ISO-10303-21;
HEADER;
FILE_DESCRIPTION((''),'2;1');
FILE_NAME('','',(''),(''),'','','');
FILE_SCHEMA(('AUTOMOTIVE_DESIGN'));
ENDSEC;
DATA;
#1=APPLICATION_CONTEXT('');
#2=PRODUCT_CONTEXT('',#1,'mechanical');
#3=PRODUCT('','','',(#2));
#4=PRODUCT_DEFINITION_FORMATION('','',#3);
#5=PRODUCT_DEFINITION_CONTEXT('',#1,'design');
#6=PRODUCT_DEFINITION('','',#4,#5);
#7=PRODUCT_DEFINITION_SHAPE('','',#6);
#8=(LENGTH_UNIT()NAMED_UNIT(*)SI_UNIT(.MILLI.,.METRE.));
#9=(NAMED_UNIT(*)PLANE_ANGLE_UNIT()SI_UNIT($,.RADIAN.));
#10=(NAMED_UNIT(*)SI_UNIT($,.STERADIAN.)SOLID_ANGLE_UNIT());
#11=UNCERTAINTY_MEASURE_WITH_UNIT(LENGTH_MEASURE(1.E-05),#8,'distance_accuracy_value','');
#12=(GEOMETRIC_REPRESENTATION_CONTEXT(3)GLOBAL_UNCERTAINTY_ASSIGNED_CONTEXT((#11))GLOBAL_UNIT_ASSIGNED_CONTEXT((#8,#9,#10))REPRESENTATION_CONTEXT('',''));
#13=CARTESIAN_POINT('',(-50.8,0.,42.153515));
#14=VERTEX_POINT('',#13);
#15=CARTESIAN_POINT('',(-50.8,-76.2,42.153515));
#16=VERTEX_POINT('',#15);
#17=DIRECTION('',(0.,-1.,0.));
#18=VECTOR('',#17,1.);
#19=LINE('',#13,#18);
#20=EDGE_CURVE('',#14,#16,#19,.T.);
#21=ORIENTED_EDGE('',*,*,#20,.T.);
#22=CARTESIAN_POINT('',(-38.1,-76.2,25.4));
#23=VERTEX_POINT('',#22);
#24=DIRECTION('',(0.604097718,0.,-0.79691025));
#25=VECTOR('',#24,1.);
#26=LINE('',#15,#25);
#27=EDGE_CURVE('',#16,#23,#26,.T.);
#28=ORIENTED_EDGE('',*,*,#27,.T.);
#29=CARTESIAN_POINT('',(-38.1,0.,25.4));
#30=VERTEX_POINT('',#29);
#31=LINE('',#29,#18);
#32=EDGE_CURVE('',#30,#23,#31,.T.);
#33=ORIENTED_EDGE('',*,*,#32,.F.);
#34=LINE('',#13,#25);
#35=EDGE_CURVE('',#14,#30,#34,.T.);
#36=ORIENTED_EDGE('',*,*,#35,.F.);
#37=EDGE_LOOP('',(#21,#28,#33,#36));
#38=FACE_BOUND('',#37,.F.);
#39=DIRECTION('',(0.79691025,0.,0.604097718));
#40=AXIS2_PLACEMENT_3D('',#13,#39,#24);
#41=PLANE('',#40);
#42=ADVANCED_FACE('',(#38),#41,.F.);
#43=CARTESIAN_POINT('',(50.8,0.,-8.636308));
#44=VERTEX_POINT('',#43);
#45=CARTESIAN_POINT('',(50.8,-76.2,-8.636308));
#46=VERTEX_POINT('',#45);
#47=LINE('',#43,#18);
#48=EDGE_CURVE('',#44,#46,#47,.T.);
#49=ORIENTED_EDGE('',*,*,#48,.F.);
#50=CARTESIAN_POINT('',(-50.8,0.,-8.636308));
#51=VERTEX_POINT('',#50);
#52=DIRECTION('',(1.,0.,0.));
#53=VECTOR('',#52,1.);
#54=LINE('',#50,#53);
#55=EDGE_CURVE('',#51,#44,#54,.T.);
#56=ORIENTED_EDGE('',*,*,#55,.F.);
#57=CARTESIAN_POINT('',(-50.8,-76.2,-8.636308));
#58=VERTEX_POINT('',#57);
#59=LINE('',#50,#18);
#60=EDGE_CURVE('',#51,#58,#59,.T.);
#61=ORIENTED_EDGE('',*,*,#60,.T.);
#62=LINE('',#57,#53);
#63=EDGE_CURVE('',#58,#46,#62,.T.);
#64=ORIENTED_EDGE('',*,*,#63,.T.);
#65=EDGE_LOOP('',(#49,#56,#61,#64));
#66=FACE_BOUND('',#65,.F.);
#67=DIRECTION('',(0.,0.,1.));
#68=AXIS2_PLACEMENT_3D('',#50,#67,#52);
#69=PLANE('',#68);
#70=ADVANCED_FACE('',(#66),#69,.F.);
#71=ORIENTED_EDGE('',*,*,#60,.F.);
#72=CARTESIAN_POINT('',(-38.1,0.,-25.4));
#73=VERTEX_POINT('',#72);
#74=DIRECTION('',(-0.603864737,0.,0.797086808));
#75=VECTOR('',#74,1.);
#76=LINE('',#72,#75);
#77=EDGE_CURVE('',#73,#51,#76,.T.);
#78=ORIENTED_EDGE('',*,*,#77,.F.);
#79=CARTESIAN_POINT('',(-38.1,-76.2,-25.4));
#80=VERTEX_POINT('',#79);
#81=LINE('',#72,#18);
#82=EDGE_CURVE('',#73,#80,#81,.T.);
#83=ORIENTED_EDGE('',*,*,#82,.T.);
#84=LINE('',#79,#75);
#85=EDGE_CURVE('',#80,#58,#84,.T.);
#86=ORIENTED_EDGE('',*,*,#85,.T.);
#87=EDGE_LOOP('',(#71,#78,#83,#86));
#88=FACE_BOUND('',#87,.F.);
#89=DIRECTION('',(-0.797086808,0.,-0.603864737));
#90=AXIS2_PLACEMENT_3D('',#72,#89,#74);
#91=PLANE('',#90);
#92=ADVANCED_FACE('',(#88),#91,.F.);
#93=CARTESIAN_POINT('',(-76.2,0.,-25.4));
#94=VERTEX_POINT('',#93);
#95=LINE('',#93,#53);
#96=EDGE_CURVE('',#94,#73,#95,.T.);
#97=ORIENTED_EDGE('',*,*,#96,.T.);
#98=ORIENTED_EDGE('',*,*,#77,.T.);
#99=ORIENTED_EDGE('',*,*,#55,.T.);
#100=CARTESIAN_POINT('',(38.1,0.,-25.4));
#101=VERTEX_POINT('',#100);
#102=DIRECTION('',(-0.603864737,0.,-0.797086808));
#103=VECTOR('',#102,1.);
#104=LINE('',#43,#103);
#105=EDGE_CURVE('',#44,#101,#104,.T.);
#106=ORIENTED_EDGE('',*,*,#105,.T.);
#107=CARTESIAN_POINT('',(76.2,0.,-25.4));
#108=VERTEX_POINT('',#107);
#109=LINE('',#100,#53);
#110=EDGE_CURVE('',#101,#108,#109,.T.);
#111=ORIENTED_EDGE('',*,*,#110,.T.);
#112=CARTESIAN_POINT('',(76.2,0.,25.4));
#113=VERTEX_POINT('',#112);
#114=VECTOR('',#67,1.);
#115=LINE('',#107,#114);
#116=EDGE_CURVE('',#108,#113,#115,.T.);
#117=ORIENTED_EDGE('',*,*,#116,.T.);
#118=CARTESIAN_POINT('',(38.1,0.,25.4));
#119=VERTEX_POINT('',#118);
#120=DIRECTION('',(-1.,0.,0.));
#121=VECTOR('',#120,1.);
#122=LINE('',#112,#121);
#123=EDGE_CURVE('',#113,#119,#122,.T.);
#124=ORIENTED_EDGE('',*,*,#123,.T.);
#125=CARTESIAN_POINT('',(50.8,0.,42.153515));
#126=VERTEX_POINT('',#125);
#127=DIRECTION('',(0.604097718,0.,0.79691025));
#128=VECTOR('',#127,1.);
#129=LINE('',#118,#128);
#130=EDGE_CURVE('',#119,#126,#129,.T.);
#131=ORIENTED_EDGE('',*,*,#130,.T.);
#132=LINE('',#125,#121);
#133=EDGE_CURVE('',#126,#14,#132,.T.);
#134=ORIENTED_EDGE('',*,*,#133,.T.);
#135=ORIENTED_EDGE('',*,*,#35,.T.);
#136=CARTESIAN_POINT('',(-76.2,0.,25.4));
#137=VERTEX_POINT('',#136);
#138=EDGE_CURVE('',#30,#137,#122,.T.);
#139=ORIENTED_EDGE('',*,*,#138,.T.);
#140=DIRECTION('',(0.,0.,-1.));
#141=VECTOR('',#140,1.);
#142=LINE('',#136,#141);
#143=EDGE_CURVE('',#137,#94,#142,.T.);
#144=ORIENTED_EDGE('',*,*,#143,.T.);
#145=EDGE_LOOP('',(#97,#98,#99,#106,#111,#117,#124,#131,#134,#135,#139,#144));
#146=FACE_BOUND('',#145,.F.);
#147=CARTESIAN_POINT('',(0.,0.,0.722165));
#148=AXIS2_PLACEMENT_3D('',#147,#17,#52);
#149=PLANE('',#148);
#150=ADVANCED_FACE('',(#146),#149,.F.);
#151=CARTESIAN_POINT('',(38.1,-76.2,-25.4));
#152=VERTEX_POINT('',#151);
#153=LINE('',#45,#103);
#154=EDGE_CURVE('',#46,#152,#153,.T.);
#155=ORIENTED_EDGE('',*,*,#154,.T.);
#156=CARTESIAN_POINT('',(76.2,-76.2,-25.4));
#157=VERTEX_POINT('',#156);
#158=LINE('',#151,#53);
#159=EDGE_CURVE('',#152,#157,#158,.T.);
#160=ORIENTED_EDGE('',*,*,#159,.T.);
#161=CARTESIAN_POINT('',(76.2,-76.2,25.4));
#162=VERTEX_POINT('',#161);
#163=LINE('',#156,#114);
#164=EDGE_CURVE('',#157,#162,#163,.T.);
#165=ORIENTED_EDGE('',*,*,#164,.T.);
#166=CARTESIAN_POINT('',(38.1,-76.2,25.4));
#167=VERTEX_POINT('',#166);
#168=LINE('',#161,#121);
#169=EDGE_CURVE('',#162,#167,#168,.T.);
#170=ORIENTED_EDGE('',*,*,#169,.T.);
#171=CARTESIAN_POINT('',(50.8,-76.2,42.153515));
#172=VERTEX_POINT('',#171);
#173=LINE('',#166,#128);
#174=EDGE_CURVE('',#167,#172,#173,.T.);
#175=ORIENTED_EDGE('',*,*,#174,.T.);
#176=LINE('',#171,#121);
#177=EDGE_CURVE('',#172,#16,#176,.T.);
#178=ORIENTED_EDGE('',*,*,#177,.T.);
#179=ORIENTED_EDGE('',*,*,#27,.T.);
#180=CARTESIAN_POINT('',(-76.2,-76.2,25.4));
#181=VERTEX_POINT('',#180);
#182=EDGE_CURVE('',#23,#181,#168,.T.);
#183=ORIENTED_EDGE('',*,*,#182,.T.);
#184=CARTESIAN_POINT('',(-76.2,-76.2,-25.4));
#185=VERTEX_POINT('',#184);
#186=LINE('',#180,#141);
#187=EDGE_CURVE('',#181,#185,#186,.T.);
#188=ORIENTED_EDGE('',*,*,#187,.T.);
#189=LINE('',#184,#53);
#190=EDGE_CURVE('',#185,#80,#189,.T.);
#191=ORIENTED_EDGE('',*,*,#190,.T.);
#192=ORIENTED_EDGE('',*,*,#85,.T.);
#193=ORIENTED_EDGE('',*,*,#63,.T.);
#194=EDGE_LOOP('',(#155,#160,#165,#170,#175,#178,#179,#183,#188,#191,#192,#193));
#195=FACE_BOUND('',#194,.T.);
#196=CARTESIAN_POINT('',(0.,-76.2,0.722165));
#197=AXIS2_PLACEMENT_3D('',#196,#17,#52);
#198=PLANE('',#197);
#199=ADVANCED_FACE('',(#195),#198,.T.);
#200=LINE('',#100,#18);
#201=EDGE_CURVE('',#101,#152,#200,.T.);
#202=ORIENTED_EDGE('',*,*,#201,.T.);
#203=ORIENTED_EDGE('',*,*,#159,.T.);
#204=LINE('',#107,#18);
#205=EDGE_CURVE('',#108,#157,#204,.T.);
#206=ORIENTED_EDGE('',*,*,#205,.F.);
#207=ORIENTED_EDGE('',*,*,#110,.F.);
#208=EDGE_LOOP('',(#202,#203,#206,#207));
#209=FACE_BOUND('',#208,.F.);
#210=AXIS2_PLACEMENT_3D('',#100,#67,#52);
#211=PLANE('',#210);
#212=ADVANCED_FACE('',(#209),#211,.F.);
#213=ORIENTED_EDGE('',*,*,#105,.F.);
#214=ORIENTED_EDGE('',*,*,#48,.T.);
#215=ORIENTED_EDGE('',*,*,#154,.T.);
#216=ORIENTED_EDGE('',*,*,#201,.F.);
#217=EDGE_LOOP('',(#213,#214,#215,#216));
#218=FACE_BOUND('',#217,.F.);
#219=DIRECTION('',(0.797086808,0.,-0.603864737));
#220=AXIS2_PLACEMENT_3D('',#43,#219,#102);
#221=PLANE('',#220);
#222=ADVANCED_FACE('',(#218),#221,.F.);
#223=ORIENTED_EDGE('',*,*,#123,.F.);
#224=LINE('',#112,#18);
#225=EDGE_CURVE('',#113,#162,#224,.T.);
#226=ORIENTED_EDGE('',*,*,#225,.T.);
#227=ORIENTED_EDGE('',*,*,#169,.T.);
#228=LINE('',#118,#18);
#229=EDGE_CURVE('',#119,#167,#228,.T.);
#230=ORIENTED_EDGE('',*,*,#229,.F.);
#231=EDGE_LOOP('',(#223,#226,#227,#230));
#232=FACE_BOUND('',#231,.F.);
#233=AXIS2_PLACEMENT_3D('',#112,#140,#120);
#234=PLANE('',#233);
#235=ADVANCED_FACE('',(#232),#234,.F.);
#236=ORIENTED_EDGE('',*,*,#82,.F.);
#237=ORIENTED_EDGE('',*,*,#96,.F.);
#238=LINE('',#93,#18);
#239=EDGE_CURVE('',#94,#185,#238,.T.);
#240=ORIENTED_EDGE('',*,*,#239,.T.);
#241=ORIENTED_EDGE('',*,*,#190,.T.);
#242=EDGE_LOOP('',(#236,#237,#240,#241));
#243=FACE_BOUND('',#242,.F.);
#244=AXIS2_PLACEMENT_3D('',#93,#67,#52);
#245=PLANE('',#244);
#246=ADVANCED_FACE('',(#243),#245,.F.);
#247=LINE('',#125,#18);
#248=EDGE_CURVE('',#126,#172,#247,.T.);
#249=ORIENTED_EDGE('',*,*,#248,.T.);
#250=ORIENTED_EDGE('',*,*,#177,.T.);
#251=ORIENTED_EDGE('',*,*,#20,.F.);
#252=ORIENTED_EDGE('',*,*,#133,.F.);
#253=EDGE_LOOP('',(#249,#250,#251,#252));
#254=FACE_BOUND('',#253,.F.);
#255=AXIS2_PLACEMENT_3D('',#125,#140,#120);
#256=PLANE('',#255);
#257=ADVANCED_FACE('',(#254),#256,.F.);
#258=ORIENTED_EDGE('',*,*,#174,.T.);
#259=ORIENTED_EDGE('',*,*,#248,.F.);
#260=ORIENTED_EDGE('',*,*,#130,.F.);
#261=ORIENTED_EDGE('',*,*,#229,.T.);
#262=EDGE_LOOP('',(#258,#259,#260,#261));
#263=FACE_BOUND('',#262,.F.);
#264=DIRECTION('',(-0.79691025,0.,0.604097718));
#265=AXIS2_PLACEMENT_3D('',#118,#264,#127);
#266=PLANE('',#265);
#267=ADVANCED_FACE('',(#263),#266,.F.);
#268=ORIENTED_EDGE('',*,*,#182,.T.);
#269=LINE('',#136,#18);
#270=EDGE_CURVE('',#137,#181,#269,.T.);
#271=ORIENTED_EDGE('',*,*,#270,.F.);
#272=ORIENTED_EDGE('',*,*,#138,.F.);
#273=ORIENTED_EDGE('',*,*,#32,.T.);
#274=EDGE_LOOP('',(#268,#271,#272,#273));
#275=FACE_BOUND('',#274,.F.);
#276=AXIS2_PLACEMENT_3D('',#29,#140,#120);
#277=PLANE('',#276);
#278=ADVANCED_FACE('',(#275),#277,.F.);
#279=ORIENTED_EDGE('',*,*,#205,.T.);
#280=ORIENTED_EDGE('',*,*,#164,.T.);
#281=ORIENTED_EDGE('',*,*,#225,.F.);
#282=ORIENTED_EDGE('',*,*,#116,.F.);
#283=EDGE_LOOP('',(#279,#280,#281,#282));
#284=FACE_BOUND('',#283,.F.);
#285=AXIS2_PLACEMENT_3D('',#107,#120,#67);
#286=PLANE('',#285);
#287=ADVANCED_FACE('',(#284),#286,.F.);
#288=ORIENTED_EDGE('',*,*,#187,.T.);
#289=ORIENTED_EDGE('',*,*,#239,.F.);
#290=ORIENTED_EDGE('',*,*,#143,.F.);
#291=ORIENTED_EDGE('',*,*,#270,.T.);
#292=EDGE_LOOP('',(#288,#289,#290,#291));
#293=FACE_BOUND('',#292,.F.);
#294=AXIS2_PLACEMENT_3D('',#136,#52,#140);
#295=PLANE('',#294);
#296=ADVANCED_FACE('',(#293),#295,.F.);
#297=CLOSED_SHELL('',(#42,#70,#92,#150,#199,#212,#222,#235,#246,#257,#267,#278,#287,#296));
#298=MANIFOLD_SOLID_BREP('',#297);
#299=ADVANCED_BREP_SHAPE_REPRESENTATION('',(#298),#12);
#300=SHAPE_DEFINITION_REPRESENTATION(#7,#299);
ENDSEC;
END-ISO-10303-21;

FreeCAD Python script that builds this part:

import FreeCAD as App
import Part
import Sketcher
Q = App.Units.Quantity


def add_polygon(sketch, points):
    """Adds a closed chain of lines whose ends are joined by coincident constraints."""
    first, n = sketch.GeometryCount, len(points)
    for a, b in zip(points, points[1:] + points[:1]):
        sketch.addGeometry(Part.LineSegment(App.Vector(*a, 0), App.Vector(*b, 0)), False)
    for i in range(n):
        sketch.addConstraint(Sketcher.Constraint("Coincident", first + i, 2, first + (i + 1) % n, 1))

doc = App.newDocument("Part")
body = doc.addObject("PartDesign::Body", "Body")

sketch1 = body.newObject("Sketcher::SketchObject", "Sketch")
sketch1.AttachmentSupport = (doc.getObject("XZ_Plane"), [""])
sketch1.MapMode = "FlatFace"
add_polygon(sketch1, [(-76, 25), (-76, -25), (-38, -25), (-51, -9), (51, -9), (38, -25), (76, -25), (76, 25), (38, 25), (51, 42), (-51, 42), (-38, 25)])
sketch1.addConstraint([
    Sketcher.Constraint("Vertical", 0),
    Sketcher.Constraint("Horizontal", 1),
    Sketcher.Constraint("Horizontal", 3),
    Sketcher.Constraint("Horizontal", 5),
    Sketcher.Constraint("Vertical", 6),
    Sketcher.Constraint("Horizontal", 7),
    Sketcher.Constraint("Horizontal", 9),
    Sketcher.Constraint("Horizontal", 11),
    Sketcher.Constraint("Symmetric", 0, 2, 6, 2, -1, 1),
    Sketcher.Constraint("Symmetric", 4, 2, 10, 2, -1, 1),
    Sketcher.Constraint("Symmetric", 1, 2, 4, 2, -2),
    Sketcher.Constraint("Vertical", 4, 2, 7, 2),
    Sketcher.Constraint("Vertical", 3, 2, 8, 2),
    Sketcher.Constraint("Vertical", 2, 2, 9, 2),
    Sketcher.Constraint("Equal", 2, 4),
    Sketcher.Constraint("DistanceX", 3, 1, 3, 2, Q("4 in")),
    Sketcher.Constraint("DistanceY", 0, 2, 0, 1, Q("2 in")),
    Sketcher.Constraint("DistanceX", 1, 1, 1, 2, Q("1.5 in")),
    Sketcher.Constraint("DistanceX", 0, 2, -1, 1, Q("3 in")),
    Sketcher.Constraint("Distance", 2, Q("0.828 in")),
    Sketcher.Constraint("Distance", 8, Q("21.023089 mm")),
])
pad1 = body.newObject("PartDesign::Pad", "Pad")
pad1.Profile = sketch1
pad1.Length = Q("3 in")

doc.recompute()
